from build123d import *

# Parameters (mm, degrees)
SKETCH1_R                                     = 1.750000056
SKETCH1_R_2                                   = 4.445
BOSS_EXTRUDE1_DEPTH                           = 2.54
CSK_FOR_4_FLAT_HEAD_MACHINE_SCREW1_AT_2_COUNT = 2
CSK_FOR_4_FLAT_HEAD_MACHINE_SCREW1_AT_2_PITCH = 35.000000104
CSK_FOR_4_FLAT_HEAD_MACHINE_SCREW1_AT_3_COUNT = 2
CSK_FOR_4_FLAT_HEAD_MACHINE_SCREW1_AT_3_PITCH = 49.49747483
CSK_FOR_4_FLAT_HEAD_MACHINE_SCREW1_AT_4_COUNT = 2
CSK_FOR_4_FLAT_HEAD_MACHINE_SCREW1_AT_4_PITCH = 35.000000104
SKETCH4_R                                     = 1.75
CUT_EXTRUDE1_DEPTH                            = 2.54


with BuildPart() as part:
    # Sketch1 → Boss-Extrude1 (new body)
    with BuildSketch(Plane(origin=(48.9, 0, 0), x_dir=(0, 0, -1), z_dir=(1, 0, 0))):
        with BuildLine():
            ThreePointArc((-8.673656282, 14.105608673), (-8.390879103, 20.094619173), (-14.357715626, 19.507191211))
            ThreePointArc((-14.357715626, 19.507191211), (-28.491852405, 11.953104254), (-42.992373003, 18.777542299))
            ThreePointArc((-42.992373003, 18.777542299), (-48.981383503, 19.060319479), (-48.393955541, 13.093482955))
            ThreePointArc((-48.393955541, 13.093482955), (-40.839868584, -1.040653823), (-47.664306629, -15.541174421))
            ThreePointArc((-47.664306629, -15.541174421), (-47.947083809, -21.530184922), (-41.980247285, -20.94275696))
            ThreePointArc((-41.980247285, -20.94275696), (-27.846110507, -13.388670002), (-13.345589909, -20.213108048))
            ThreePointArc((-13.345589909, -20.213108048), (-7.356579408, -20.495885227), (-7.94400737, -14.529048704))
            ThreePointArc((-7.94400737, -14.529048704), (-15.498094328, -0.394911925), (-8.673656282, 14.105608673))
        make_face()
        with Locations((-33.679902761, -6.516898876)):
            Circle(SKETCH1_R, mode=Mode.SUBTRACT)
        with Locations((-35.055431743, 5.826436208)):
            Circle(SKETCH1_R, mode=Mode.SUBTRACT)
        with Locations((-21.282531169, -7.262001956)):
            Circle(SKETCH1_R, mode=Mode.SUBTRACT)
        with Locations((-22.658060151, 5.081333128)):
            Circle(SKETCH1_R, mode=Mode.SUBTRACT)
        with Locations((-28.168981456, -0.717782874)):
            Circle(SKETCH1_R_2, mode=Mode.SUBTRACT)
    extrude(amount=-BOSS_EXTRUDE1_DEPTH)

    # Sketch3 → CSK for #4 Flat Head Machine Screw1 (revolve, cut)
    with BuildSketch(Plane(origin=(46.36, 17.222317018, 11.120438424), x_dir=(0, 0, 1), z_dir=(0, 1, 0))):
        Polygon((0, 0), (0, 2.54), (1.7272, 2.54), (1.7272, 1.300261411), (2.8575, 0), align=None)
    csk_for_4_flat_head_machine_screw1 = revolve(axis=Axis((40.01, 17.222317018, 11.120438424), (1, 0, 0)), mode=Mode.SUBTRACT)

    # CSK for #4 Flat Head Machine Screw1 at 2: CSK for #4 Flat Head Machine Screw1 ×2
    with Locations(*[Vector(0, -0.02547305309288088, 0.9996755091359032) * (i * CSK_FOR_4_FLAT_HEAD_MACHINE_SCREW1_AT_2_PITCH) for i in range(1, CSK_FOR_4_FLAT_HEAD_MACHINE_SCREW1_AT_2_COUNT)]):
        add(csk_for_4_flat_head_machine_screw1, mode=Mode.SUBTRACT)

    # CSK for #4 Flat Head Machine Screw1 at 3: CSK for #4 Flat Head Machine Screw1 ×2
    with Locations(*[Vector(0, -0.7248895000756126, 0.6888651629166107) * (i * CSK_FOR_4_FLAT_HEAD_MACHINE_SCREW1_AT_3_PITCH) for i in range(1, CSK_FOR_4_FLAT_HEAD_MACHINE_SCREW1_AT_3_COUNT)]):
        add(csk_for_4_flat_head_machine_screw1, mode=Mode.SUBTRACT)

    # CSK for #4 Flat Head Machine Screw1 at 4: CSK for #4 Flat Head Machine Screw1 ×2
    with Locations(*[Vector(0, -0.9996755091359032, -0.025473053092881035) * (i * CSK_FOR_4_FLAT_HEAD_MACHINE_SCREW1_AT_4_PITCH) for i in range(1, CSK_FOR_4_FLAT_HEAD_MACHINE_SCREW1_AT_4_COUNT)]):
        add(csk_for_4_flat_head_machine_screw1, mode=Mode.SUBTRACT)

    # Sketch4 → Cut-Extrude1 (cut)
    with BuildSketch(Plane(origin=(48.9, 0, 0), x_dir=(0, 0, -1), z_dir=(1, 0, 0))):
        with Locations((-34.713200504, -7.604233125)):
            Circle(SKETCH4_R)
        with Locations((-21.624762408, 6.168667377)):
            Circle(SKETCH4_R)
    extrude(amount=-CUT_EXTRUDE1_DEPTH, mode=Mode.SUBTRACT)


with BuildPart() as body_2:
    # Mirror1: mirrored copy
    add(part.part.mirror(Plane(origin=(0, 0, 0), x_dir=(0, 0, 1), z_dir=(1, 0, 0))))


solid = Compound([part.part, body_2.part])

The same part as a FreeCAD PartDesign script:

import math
import FreeCAD as App
import Part
import Sketcher
from FreeCAD import Vector
Q = App.Units.Quantity

doc = App.newDocument("Part")
body = doc.addObject("PartDesign::Body", "Body")

# Sketch on YZ plane
sketch1 = body.newObject("Sketcher::SketchObject", "Sketch")
sketch1.AttachmentSupport = (doc.getObject("YZ_Plane"), [""])
sketch1.MapMode = "FlatFace"
sketch1.AttachmentOffset = App.Placement(Vector(0, 0, 48.9), App.Rotation())
sketch1.addGeometry([
    Part.ArcOfCircle(Part.Circle(Vector(17.2, 11.1, 0), Vector(0, 0, 1), 4), math.radians(-142), math.radians(55)),  # 0
    Part.ArcOfCircle(Part.Circle(Vector(29.8, 28.9, 0), Vector(0, 0, 1), 17.9), math.radians(128), math.radians(235)),  # 1
    Part.ArcOfCircle(Part.Circle(Vector(16.3, 46.1, 0), Vector(0, 0, 1), 4), math.radians(-52), math.radians(145)),  # 2
    Part.ArcOfCircle(Part.Circle(Vector(-1.5, 58.7, 0), Vector(0, 0, 1), 17.9), math.radians(-142), math.radians(-35)),  # 3
    Part.ArcOfCircle(Part.Circle(Vector(-18.7, 45.2, 0), Vector(0, 0, 1), 4), math.radians(38), math.radians(235)),  # 4
    Part.ArcOfCircle(Part.Circle(Vector(-31.2, 27.4, 0), Vector(0, 0, 1), 17.9), math.radians(-52), math.radians(55)),  # 5
    Part.ArcOfCircle(Part.Circle(Vector(-17.8, 10.2, 0), Vector(0, 0, 1), 4), math.radians(128), math.radians(325)),  # 6
    Part.ArcOfCircle(Part.Circle(Vector(0.1, -2.4, 0), Vector(0, 0, 1), 17.9), math.radians(38), math.radians(145)),  # 7
    Part.Circle(Vector(-6.5, 33.7, 0), Vector(0, 0, 1), 1.8),  # 8
    Part.Circle(Vector(-7.3, 21.3, 0), Vector(0, 0, 1), 1.8),  # 9
    Part.Circle(Vector(-0.7, 28.2, 0), Vector(0, 0, 1), 4.4),  # 10
    Part.Circle(Vector(5.8, 35.1, 0), Vector(0, 0, 1), 1.8),  # 11
    Part.Circle(Vector(5.1, 22.7, 0), Vector(0, 0, 1), 1.8),  # 12
], False)
sketch1.addConstraint([
    Sketcher.Constraint("Tangent", 0, 2, 1, 2),
    Sketcher.Constraint("Tangent", 1, 1, 2, 1),
    Sketcher.Constraint("Tangent", 2, 2, 3, 2),
    Sketcher.Constraint("Tangent", 3, 1, 4, 1),
    Sketcher.Constraint("Tangent", 4, 2, 5, 2),
    Sketcher.Constraint("Tangent", 5, 1, 6, 1),
    Sketcher.Constraint("Tangent", 6, 2, 7, 2),
    Sketcher.Constraint("Tangent", 7, 1, 0, 1),
    Sketcher.Constraint("Equal", 0, 2),
    Sketcher.Constraint("Equal", 1, 3),
    Sketcher.Constraint("Equal", 2, 4),
    Sketcher.Constraint("Equal", 3, 5),
    Sketcher.Constraint("Equal", 4, 6),
    Sketcher.Constraint("Equal", 5, 7),
    Sketcher.Constraint("Equal", 8, 9),
    Sketcher.Constraint("Equal", 9, 11),
    Sketcher.Constraint("Equal", 11, 12),
    Sketcher.Constraint("Diameter", 10, Q("0.35 in")),
    Sketcher.Constraint("Radius", 0, Q("0.156 in")),
    Sketcher.Constraint("Diameter", 8, Q("3.5 mm")),
    Sketcher.Constraint("Radius", 1, Q("17.856818 mm")),
    Sketcher.Constraint("DistanceX", 5, 3, 1, 3, Q("2.4033001 in")),
    Sketcher.Constraint("DistanceX", 8, 3, -1, 1, Q("6.516899 mm")),
    Sketcher.Constraint("DistanceX", 9, 3, -1, 1, Q("7.262002 mm")),
    Sketcher.Constraint("DistanceX", 4, 3, 0, 3, Q("35.8802 mm")),
    Sketcher.Constraint("DistanceY", 6, 3, 2, 3, Q("35.8802 mm")),
    Sketcher.Constraint("DistanceY", 10, 3, 2, 3, Q("17.9401 mm")),
    Sketcher.Constraint("DistanceX", 10, 3, 0, 3, Q("17.9401 mm")),
    Sketcher.Constraint("DistanceY", 9, 3, 11, 3, Q("13.772901 mm")),
    Sketcher.Constraint("DistanceY", -1, 1, 0, 3, Q("11.120438 mm")),
    Sketcher.Constraint("DistanceX", -1, 1, 1, 3, Q("29.804128 mm")),
    Sketcher.Constraint("DistanceY", -1, 1, 1, 3, Q("28.94672 mm")),
    Sketcher.Constraint("DistanceX", -1, 1, 2, 3, Q("16.33076 mm")),
    Sketcher.Constraint("DistanceX", 3, 3, -1, 1, Q("1.495522 mm")),
    Sketcher.Constraint("DistanceY", -1, 1, 9, 3, Q("21.282531 mm")),
    Sketcher.Constraint("DistanceY", -1, 1, 12, 3, Q("22.65806 mm")),
    Sketcher.Constraint("DistanceY", 8, 3, 4, 3, Q("11.537622 mm")),
    Sketcher.Constraint("DistanceX", 10, 3, 11, 3, Q("6.544219 mm")),
    Sketcher.Constraint("DistanceX", 12, 3, 0, 2, Q("14.425858 mm")),
])
pad1 = body.newObject("PartDesign::Pad", "Pad")
pad1.Profile = sketch1
pad1.Length = Q("0.1 in")
pad1.Reversed = True

# Sketch on XZ plane
sketch2 = body.newObject("Sketcher::SketchObject", "Sketch001")
sketch2.AttachmentSupport = (doc.getObject("XZ_Plane"), [""])
sketch2.MapMode = "FlatFace"
sketch2.AttachmentOffset = App.Placement(Vector(0, 0, -17.222317), App.Rotation())
sketch2.addGeometry([
    Part.LineSegment(Vector(48.9, 11.1, 0), Vector(46.4, 11.1, 0)),  # 0
    Part.LineSegment(Vector(46.4, 11.1, 0), Vector(46.4, 14, 0)),  # 1
    Part.LineSegment(Vector(46.4, 14, 0), Vector(47.7, 12.8, 0)),  # 2
    Part.LineSegment(Vector(47.7, 12.8, 0), Vector(48.9, 12.8, 0)),  # 3
    Part.LineSegment(Vector(48.9, 12.8, 0), Vector(48.9, 11.1, 0)),  # 4
], False)
sketch2.addGeometry(Part.LineSegment(Vector(46.4, 11.1, 0), Vector(48.9, 11.1, 0)), True)  # axis
sketch2.addConstraint([
    Sketcher.Constraint("Coincident", 0, 2, 1, 1),
    Sketcher.Constraint("Coincident", 1, 2, 2, 1),
    Sketcher.Constraint("Coincident", 2, 2, 3, 1),
    Sketcher.Constraint("Coincident", 3, 2, 4, 1),
    Sketcher.Constraint("Coincident", 4, 2, 0, 1),
    Sketcher.Constraint("Horizontal", 0),
    Sketcher.Constraint("Vertical", 1),
    Sketcher.Constraint("Horizontal", 3),
    Sketcher.Constraint("Vertical", 4),
    Sketcher.Constraint("Horizontal", 5),
    Sketcher.Constraint("Coincident", 5, 1, 0, 2),
    Sketcher.Constraint("Vertical", 3, 2, 5, 2),
    Sketcher.Constraint("DistanceX", 0, 2, 0, 1, Q("0.1 in")),
    Sketcher.Constraint("Angle", 2, Q("-41 deg")),
    Sketcher.Constraint("DistanceY", 4, 2, 4, 1, Q("0.068 in")),
    Sketcher.Constraint("DistanceY", 1, 1, 1, 2, Q("0.1125 in")),
    Sketcher.Constraint("DistanceX", -1, 1, 0, 2, Q("46.36 mm")),
    Sketcher.Constraint("DistanceY", -1, 1, 0, 2, Q("11.120438 mm")),
])
groove = body.newObject("PartDesign::Groove", "Groove")
groove.Profile = sketch2
groove.ReferenceAxis = (sketch2, ["Axis0"])
groove.Angle = 360
doc.recompute()

datumline = body.newObject("PartDesign::Line", "DatumLine")
datumline.Placement = App.Placement(Vector(0, 0, 0), App.Rotation(Vector(0, 0, 1), Vector(0, -0.025473053, 0.999675509)))
linearpattern = body.newObject("PartDesign::LinearPattern", "LinearPattern")
linearpattern.Originals = [groove]
linearpattern.Direction = (datumline, [""])
linearpattern.Mode = "offset"
linearpattern.Offset = 35
linearpattern.Occurrences = 2
body.Tip = linearpattern
doc.recompute()

datumline2 = body.newObject("PartDesign::Line", "DatumLine001")
datumline2.Placement = App.Placement(Vector(0, 0, 0), App.Rotation(Vector(0, 0, 1), Vector(0, -0.7248895, 0.688865163)))
linearpattern2 = body.newObject("PartDesign::LinearPattern", "LinearPattern001")
linearpattern2.Originals = [groove]
linearpattern2.Direction = (datumline2, [""])
linearpattern2.Mode = "offset"
linearpattern2.Offset = 49.497475
linearpattern2.Occurrences = 2
body.Tip = linearpattern2
doc.recompute()

datumline3 = body.newObject("PartDesign::Line", "DatumLine002")
datumline3.Placement = App.Placement(Vector(0, 0, 0), App.Rotation(Vector(0, 0, 1), Vector(0, -0.999675509, -0.025473053)))
linearpattern3 = body.newObject("PartDesign::LinearPattern", "LinearPattern002")
linearpattern3.Originals = [groove]
linearpattern3.Direction = (datumline3, [""])
linearpattern3.Mode = "offset"
linearpattern3.Offset = 35
linearpattern3.Occurrences = 2
body.Tip = linearpattern3

# Sketch on YZ plane
sketch3 = body.newObject("Sketcher::SketchObject", "Sketch002")
sketch3.AttachmentSupport = (doc.getObject("YZ_Plane"), [""])
sketch3.MapMode = "FlatFace"
sketch3.AttachmentOffset = App.Placement(Vector(0, 0, 48.9), App.Rotation())
sketch3.addGeometry([
    Part.Circle(Vector(-7.6, 34.7, 0), Vector(0, 0, 1), 1.8),
    Part.Circle(Vector(6.2, 21.6, 0), Vector(0, 0, 1), 1.8),
], False)
sketch3.addConstraint([
    Sketcher.Constraint("Equal", 0, 1),
    Sketcher.Constraint("Diameter", 0, Q("3.5 mm")),
    Sketcher.Constraint("DistanceY", -1, 1, 0, 3, Q("34.713201 mm")),
    Sketcher.Constraint("DistanceX", 0, 3, 1, 3, Q("13.772901 mm")),
    Sketcher.Constraint("DistanceY", 1, 3, 0, 3, Q("13.088438 mm")),
    Sketcher.Constraint("DistanceX", 0, 3, -1, 1, Q("7.604233 mm")),
])
pocket1 = body.newObject("PartDesign::Pocket", "Pocket")
pocket1.Profile = sketch3
pocket1.Length = Q("0.1 in")
body2 = doc.addObject("PartDesign::Body", "Body001")
doc.recompute()

mirroring = doc.addObject("Part::Mirroring", "Mirroring")
mirroring.Source = body
mirroring.Base = Vector(0, 0, 0)
mirroring.Normal = Vector(1, 0, 0)
body2.BaseFeature = mirroring
doc.recompute()
mirroring.Visibility = False

doc.recompute()
